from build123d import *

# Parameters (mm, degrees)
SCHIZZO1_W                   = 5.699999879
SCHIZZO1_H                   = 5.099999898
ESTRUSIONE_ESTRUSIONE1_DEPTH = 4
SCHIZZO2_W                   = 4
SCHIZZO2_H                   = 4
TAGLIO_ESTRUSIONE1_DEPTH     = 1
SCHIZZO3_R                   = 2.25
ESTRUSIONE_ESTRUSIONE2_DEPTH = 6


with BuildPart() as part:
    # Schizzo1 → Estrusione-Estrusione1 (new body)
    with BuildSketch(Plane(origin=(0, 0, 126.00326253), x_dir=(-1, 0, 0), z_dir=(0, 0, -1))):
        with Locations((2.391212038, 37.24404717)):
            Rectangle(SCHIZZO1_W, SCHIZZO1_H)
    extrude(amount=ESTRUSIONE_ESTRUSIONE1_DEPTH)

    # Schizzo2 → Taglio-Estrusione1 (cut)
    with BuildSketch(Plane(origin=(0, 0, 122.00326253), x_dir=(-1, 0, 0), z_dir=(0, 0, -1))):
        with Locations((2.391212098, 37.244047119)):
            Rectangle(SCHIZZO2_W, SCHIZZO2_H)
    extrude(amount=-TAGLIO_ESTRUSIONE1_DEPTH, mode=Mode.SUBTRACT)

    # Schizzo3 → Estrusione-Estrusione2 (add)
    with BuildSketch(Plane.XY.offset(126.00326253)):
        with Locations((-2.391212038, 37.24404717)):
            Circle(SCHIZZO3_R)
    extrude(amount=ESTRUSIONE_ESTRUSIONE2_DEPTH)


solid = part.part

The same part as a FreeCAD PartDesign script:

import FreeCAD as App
import Part
import Sketcher
from FreeCAD import Vector
Q = App.Units.Quantity


def add_polygon(sketch, points):
    """Adds a closed chain of lines whose ends are joined by coincident constraints."""
    first, n = sketch.GeometryCount, len(points)
    for a, b in zip(points, points[1:] + points[:1]):
        sketch.addGeometry(Part.LineSegment(App.Vector(*a, 0), App.Vector(*b, 0)), False)
    for i in range(n):
        sketch.addConstraint(Sketcher.Constraint("Coincident", first + i, 2, first + (i + 1) % n, 1))

doc = App.newDocument("Part")
body = doc.addObject("PartDesign::Body", "Body")

# Sketch on XY plane
sketch1 = doc.addObject("Sketcher::SketchObject", "Sketch")
body.addObject(sketch1)
sketch1.AttachmentSupport = (doc.XY_Plane, [""])
sketch1.MapMode = "FlatFace"
sketch1.AttachmentOffset = App.Placement(Vector(0, 0, 126.003263), App.Rotation())
add_polygon(sketch1, [(0, 40), (0, 35), (-5, 35), (-5, 40)])  # lines 0-3
sketch1.addConstraint(Sketcher.Constraint("Vertical", 0))
sketch1.addConstraint(Sketcher.Constraint("Horizontal", 1))
sketch1.addConstraint(Sketcher.Constraint("Vertical", 2))
sketch1.addConstraint(Sketcher.Constraint("Horizontal", 3))
sketch1.addConstraint(Sketcher.Constraint("DistanceX", 1, 2, 1, 1, Q("5.7 mm")))
sketch1.addConstraint(Sketcher.Constraint("DistanceY", 0, 2, 0, 1, Q("5.1 mm")))
sketch1.addConstraint(Sketcher.Constraint("DistanceX", 1, 2, -1, 1, Q("5.241212 mm")))
sketch1.addConstraint(Sketcher.Constraint("DistanceY", -1, 1, 0, 2, Q("34.694047 mm")))
pad1 = doc.addObject("PartDesign::Pad", "Pad")
body.addObject(pad1)
pad1.Profile = sketch1
pad1.Length = 4
pad1.Reversed = True

# Sketch on XY plane
sketch2 = doc.addObject("Sketcher::SketchObject", "Sketch001")
body.addObject(sketch2)
sketch2.AttachmentSupport = (doc.XY_Plane, [""])
sketch2.MapMode = "FlatFace"
sketch2.AttachmentOffset = App.Placement(Vector(0, 0, 122.003263), App.Rotation())
add_polygon(sketch2, [(-0.4, 39.2), (-0.4, 35.2), (-4.4, 35.2), (-4.4, 39.2)])  # lines 0-3
sketch2.addConstraint(Sketcher.Constraint("Vertical", 0))
sketch2.addConstraint(Sketcher.Constraint("Horizontal", 1))
sketch2.addConstraint(Sketcher.Constraint("Vertical", 2))
sketch2.addConstraint(Sketcher.Constraint("Horizontal", 3))
sketch2.addConstraint(Sketcher.Constraint("Equal", 3, 0))
sketch2.addConstraint(Sketcher.Constraint("DistanceX", 1, 2, 1, 1, Q("4 mm")))
sketch2.addConstraint(Sketcher.Constraint("DistanceX", 0, 2, -1, 1, Q("0.391212 mm")))
sketch2.addConstraint(Sketcher.Constraint("DistanceY", -1, 1, 0, 2, Q("35.244047 mm")))
pocket1 = doc.addObject("PartDesign::Pocket", "Pocket")
body.addObject(pocket1)
pocket1.Profile = sketch2
pocket1.Length = 1
pocket1.Reversed = True

# Sketch on XY plane
sketch3 = doc.addObject("Sketcher::SketchObject", "Sketch002")
body.addObject(sketch3)
sketch3.AttachmentSupport = (doc.XY_Plane, [""])
sketch3.MapMode = "FlatFace"
sketch3.AttachmentOffset = App.Placement(Vector(0, 0, 126.003263), App.Rotation())
sketch3.addGeometry(Part.Circle(Vector(-2.4, 37.2, 0), Vector(0, 0, 1), 2.2), False)
sketch3.addConstraint(Sketcher.Constraint("Diameter", 0, Q("4.5 mm")))
sketch3.addConstraint(Sketcher.Constraint("DistanceX", 0, 3, -1, 1, Q("2.391212 mm")))
sketch3.addConstraint(Sketcher.Constraint("DistanceY", -1, 1, 0, 3, Q("37.244047 mm")))
pad2 = doc.addObject("PartDesign::Pad", "Pad001")
body.addObject(pad2)
pad2.Profile = sketch3
pad2.Length = 6

doc.recompute()
